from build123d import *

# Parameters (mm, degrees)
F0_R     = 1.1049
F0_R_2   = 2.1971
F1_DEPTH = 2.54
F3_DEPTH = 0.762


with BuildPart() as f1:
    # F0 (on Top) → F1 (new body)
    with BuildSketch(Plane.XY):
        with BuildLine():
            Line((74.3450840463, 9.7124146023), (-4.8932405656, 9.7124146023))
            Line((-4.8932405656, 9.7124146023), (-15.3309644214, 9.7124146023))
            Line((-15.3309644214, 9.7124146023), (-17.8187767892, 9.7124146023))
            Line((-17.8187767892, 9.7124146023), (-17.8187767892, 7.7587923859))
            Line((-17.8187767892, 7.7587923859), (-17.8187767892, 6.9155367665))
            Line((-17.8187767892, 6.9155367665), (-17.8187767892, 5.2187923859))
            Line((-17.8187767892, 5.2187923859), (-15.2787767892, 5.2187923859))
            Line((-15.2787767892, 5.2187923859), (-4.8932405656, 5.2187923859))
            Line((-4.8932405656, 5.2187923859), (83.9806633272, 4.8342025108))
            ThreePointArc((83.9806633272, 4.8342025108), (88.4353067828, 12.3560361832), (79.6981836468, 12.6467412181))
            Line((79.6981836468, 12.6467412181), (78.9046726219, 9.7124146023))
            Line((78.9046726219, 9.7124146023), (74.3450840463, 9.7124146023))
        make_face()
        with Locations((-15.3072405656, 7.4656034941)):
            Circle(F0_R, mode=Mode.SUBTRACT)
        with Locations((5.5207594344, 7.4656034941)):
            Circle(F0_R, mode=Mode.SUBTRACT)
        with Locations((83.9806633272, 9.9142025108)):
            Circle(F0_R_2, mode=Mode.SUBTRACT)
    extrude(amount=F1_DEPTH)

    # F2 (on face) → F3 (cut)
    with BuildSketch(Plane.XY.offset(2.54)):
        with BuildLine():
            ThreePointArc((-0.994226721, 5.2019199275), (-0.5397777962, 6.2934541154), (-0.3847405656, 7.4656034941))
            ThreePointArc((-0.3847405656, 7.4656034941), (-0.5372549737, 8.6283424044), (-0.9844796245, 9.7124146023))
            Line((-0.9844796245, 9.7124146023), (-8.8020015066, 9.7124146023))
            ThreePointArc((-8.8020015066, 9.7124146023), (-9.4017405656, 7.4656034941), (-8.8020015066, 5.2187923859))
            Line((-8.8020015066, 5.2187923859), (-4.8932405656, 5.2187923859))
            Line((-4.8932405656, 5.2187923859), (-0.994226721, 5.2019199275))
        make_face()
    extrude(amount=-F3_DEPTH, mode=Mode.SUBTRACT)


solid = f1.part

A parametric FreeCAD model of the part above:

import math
import FreeCAD as App
import Part
import Sketcher

V = App.Vector
Q = App.Units.Quantity

doc = App.newDocument("Part")
params = doc.addObject("Spreadsheet::Sheet", "Params")
for row, (alias, value) in enumerate([
    ("sketch1_radius", "0.2 in"),
    ("sketch1_diameter", "0.087 in"),
    ("sketch1_diameter2", "0.173 in"),
    ("pad1_length", "0.1 in"),
    ("pocket1_length", "0.03 in"),
], start=1):
    params.set(f"A{row}", alias)
    params.set(f"B{row}", "=" + value)
    params.setAlias(f"B{row}", alias)

body = doc.addObject("PartDesign::Body", "Body")

# Sketch on XY plane
sketch1 = body.newObject("Sketcher::SketchObject", "Sketch")
sketch1.AttachmentSupport = (doc.getObject("XY_Plane"), [""])
sketch1.MapMode = "FlatFace"
sketch1.addGeometry([
    Part.LineSegment(V(-17.8, 9.7, 0), V(-17.8, 5.2, 0)),  # 0
    Part.LineSegment(V(-17.8, 5.2, 0), V(-4.9, 5.2, 0)),  # 1
    Part.LineSegment(V(-4.9, 5.2, 0), V(84, 4.8, 0)),  # 2
    Part.ArcOfCircle(Part.Circle(V(84, 9.9, 0), V(0, 0, 1), 5.1), math.radians(-90), math.radians(147)),  # 3
    Part.LineSegment(V(79.7, 12.6, 0), V(78.9, 9.7, 0)),  # 4
    Part.LineSegment(V(78.9, 9.7, 0), V(-17.8, 9.7, 0)),  # 5
    Part.Circle(V(-15.3, 7.5, 0), V(0, 0, 1), 1.1),  # 6
    Part.Circle(V(5.5, 7.5, 0), V(0, 0, 1), 1.1),  # 7
    Part.Circle(V(84, 9.9, 0), V(0, 0, 1), 2.2),  # 8
], False)
sketch1.addConstraint([
    Sketcher.Constraint("Coincident", 0, 2, 1, 1),
    Sketcher.Constraint("Coincident", 1, 2, 2, 1),
    Sketcher.Constraint("Coincident", 2, 2, 3, 1),
    Sketcher.Constraint("Coincident", 3, 2, 4, 1),
    Sketcher.Constraint("Coincident", 4, 2, 5, 1),
    Sketcher.Constraint("Coincident", 5, 2, 0, 1),
    Sketcher.Constraint("Vertical", 0),
    Sketcher.Constraint("Horizontal", 1),
    Sketcher.Constraint("Horizontal", 5),
    Sketcher.Constraint("Coincident", 8, 3, 3, 3),
    Sketcher.Constraint("Equal", 6, 7),
    Sketcher.Constraint("Horizontal", 6, 3, 7, 3),
    Sketcher.Constraint("Vertical", 8, 3, 2, 2),
    Sketcher.Constraint("Radius", 3, Q("0.2 in")),
    Sketcher.Constraint("Diameter", 6, Q("0.087 in")),
    Sketcher.Constraint("Diameter", 8, Q("0.173 in")),
    Sketcher.Constraint("DistanceX", 6, 3, 7, 3, Q("0.82 in")),
    Sketcher.Constraint("DistanceX", 6, 3, 1, 2, Q("0.41 in")),
    Sketcher.Constraint("DistanceX", 5, 2, 5, 1, 96.723449),
    Sketcher.Constraint("DistanceY", 6, 3, 3, 3, 2.448599),
    Sketcher.Constraint("DistanceX", 1, 1, 1, 2, 12.925536),
    Sketcher.Constraint("DistanceY", 0, 2, 0, 1, 4.493622),
    Sketcher.Constraint("DistanceX", 6, 3, -1, 1, 15.307241),
    Sketcher.Constraint("DistanceY", -1, 1, 3, 2, 12.646741),
    Sketcher.Constraint("DistanceY", 0, 2, 6, 3, 2.246811),
    Sketcher.Constraint("DistanceX", 0, 2, 3, 3, 101.79944),
    Sketcher.Constraint("DistanceX", 3, 2, 3, 3, 4.28248),
])
sketch1.setExpression("Constraints[13]", "Params.sketch1_radius")
sketch1.setExpression("Constraints[14]", "Params.sketch1_diameter")
sketch1.setExpression("Constraints[15]", "Params.sketch1_diameter2")
pad1 = body.newObject("PartDesign::Pad", "Pad")
pad1.Profile = sketch1
pad1.setExpression("Length", "Params.pad1_length")

# Sketch on XY plane
sketch2 = body.newObject("Sketcher::SketchObject", "Sketch001")
sketch2.AttachmentSupport = (doc.getObject("XY_Plane"), [""])
sketch2.MapMode = "FlatFace"
sketch2.AttachmentOffset = App.Placement(V(0, 0, 0.1 * 25.4), App.Rotation())
sketch2.addGeometry([
    Part.ArcOfCircle(Part.Circle(V(-4.9, 7.5, 0), V(0, 0, 1), 4.5), math.radians(-30), math.radians(0)),  # 0
    Part.ArcOfCircle(Part.Circle(V(-4.9, 7.5, 0), V(0, 0, 1), 4.5), math.radians(0), math.radians(30)),  # 1
    Part.LineSegment(V(-1, 9.7, 0), V(-8.8, 9.7, 0)),  # 2
    Part.ArcOfCircle(Part.Circle(V(-4.9, 7.5, 0), V(0, 0, 1), 4.5), math.radians(150), math.radians(210)),  # 3
    Part.LineSegment(V(-8.8, 5.2, 0), V(-4.9, 5.2, 0)),  # 4
    Part.LineSegment(V(-4.9, 5.2, 0), V(-1, 5.2, 0)),  # 5
], False)
sketch2.addConstraint([
    Sketcher.Constraint("Tangent", 0, 2, 1, 1),
    Sketcher.Constraint("Coincident", 1, 2, 2, 1),
    Sketcher.Constraint("Coincident", 2, 2, 3, 1),
    Sketcher.Constraint("Coincident", 3, 2, 4, 1),
    Sketcher.Constraint("Coincident", 4, 2, 5, 1),
    Sketcher.Constraint("Coincident", 5, 2, 0, 1),
    Sketcher.Constraint("Horizontal", 2),
    Sketcher.Constraint("Horizontal", 4),
    Sketcher.Constraint("Coincident", 3, 3, 0, 3),
    Sketcher.Constraint("Equal", 0, 1),
    Sketcher.Constraint("Equal", 1, 3),
    Sketcher.Constraint("Horizontal", 3, 3, 0, 2),
    Sketcher.Constraint("Vertical", 2, 2, 3, 2),
    Sketcher.Constraint("Vertical", 3, 3, 4, 2),
    Sketcher.Constraint("Radius", 0, Q("0.1775 in")),
    Sketcher.Constraint("DistanceY", -1, 1, 5, 2, Q("0.2048 in")),
    Sketcher.Constraint("DistanceX", 2, 2, 2, 1, 7.817522),
    Sketcher.Constraint("DistanceX", 2, 2, -1, 1, 8.802002),
    Sketcher.Constraint("Distance", 5, 3.89905),
])
pocket1 = body.newObject("PartDesign::Pocket", "Pocket")
pocket1.Profile = sketch2
pocket1.setExpression("Length", "Params.pocket1_length")

doc.recompute()
